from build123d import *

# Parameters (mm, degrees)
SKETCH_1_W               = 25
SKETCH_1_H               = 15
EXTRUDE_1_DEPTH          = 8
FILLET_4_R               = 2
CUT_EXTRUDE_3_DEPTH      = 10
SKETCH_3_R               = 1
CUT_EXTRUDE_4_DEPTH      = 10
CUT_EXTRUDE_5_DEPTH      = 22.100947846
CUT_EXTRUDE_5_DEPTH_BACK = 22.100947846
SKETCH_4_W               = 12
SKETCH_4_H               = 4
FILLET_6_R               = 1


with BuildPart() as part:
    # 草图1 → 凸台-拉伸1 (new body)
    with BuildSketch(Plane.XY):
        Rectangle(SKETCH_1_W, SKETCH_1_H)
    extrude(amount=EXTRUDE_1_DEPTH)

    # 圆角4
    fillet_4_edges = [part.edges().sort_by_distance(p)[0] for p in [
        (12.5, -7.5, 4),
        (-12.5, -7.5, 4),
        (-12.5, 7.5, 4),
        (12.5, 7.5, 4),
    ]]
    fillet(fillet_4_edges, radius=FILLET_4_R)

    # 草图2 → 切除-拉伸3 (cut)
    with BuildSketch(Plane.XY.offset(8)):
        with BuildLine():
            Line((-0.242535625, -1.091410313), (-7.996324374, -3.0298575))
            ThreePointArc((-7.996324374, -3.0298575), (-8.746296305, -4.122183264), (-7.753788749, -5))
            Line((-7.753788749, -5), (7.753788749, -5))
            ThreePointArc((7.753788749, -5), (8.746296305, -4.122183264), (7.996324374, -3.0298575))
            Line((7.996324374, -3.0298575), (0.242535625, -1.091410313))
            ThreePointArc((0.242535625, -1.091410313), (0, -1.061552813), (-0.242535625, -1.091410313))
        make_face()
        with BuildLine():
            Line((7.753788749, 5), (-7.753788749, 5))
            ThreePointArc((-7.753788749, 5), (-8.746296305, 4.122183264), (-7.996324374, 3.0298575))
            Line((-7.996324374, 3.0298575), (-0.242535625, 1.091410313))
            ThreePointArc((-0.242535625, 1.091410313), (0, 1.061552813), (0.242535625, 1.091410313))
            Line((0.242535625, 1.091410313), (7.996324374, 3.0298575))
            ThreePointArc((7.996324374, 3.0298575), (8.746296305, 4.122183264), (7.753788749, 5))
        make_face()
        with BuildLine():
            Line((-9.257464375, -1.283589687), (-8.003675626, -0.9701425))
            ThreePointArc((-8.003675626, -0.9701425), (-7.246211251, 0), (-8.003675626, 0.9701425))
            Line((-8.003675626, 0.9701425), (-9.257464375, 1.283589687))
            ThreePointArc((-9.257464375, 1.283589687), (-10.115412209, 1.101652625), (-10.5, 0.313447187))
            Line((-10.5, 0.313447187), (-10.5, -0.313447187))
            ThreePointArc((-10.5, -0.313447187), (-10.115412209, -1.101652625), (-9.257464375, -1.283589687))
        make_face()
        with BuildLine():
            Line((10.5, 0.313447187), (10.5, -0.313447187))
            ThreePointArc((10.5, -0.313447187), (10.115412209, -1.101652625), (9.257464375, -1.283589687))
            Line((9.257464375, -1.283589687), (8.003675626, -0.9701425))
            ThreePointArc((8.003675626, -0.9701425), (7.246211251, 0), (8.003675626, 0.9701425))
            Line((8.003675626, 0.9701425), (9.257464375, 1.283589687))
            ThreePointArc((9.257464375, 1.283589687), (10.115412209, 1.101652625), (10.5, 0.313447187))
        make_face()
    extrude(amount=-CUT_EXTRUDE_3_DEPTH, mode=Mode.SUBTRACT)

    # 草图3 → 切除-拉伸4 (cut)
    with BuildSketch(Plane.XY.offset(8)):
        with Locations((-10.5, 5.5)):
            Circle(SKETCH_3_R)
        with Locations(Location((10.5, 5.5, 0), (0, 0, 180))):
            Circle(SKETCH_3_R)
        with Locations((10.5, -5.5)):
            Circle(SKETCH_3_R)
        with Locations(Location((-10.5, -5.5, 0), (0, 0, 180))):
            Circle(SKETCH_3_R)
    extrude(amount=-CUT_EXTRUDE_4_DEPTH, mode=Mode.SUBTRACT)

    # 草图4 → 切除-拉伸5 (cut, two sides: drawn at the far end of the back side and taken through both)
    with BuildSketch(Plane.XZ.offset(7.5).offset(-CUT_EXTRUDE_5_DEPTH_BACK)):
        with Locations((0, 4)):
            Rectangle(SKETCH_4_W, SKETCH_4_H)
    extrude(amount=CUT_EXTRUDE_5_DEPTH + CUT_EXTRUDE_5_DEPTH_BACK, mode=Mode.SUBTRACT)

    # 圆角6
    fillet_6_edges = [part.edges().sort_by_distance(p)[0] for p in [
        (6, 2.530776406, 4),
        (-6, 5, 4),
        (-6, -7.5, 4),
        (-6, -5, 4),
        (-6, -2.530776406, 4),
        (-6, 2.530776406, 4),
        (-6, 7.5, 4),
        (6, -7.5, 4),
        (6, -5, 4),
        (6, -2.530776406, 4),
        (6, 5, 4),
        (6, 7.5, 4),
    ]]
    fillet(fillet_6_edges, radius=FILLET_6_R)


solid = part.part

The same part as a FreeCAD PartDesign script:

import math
import FreeCAD as App
import Part
import Sketcher
Q = App.Units.Quantity


def edges_at(feature, points):
    """Names of the edges that pass closest to the given points."""
    edges = feature.Shape.Edges
    near = lambda p: min(range(len(edges)), key=lambda i: edges[i].distToShape(Part.Vertex(*p))[0])
    return sorted({f"Edge{near(p) + 1}" for p in points})

doc = App.newDocument("Part")
body = doc.addObject("PartDesign::Body", "Body")

sketch1 = body.newObject("Sketcher::SketchObject", "Sketch")
sketch1.AttachmentSupport = (doc.getObject("XY_Plane"), [""])
sketch1.MapMode = "FlatFace"
sketch1.addGeometry([
    Part.LineSegment(App.Vector(-12.5, 7.5, 0), App.Vector(-12.5, -7.5, 0)),
    Part.LineSegment(App.Vector(-12.5, -7.5, 0), App.Vector(12.5, -7.5, 0)),
    Part.LineSegment(App.Vector(12.5, -7.5, 0), App.Vector(12.5, 7.5, 0)),
    Part.LineSegment(App.Vector(12.5, 7.5, 0), App.Vector(-12.5, 7.5, 0)),
], False)
sketch1.addConstraint([
    Sketcher.Constraint("Coincident", 0, 2, 1, 1),
    Sketcher.Constraint("Coincident", 1, 2, 2, 1),
    Sketcher.Constraint("Coincident", 2, 2, 3, 1),
    Sketcher.Constraint("Coincident", 3, 2, 0, 1),
    Sketcher.Constraint("Vertical", 0),
    Sketcher.Constraint("Horizontal", 1),
    Sketcher.Constraint("Vertical", 2),
    Sketcher.Constraint("Horizontal", 3),
    Sketcher.Constraint("Symmetric", 0, 2, 2, 2, -1, 1),
    Sketcher.Constraint("DistanceX", 1, 1, 1, 2, Q("25 mm")),
    Sketcher.Constraint("DistanceY", 0, 2, 0, 1, Q("15 mm")),
])
pad1 = body.newObject("PartDesign::Pad", "Pad")
pad1.Profile = sketch1
pad1.Length = 8
doc.recompute()

fillet = body.newObject("PartDesign::Fillet", "Fillet")
fillet.Base = (pad1, edges_at(pad1, [
    (12.5, -7.5, 4),
    (-12.5, -7.5, 4),
    (-12.5, 7.5, 4),
    (12.5, 7.5, 4),
]))
fillet.Radius = 2

sketch2 = body.newObject("Sketcher::SketchObject", "Sketch001")
sketch2.AttachmentSupport = (doc.getObject("XY_Plane"), [""])
sketch2.MapMode = "FlatFace"
sketch2.AttachmentOffset = App.Placement(App.Vector(0, 0, 8), App.Rotation())
sketch2.addGeometry([
    Part.LineSegment(App.Vector(-0.242536, -1.09141, 0), App.Vector(-7.996324, -3.029857, 0)),
    Part.ArcOfCircle(Part.Circle(App.Vector(-7.753789, -4, 0), App.Vector(0, 0, 1), 1), math.radians(104.036244), math.radians(270)),
    Part.LineSegment(App.Vector(-7.753789, -5, 0), App.Vector(7.753789, -5, 0)),
    Part.ArcOfCircle(Part.Circle(App.Vector(7.753789, -4, 0), App.Vector(0, 0, 1), 1), math.radians(-90), math.radians(75.963756)),
    Part.LineSegment(App.Vector(7.996324, -3.029857, 0), App.Vector(0.242536, -1.09141, 0)),
    Part.ArcOfCircle(Part.Circle(App.Vector(0, -2.061553, 0), App.Vector(0, 0, 1), 1), math.radians(75.963756), math.radians(104.036244)),
    Part.LineSegment(App.Vector(7.753789, 5, 0), App.Vector(-7.753789, 5, 0)),
    Part.ArcOfCircle(Part.Circle(App.Vector(-7.753789, 4, 0), App.Vector(0, 0, 1), 1), math.radians(90), math.radians(255.963756)),
    Part.LineSegment(App.Vector(-7.996324, 3.029857, 0), App.Vector(-0.242536, 1.09141, 0)),
    Part.ArcOfCircle(Part.Circle(App.Vector(0, 2.061553, 0), App.Vector(0, 0, 1), 1), math.radians(-104.036244), math.radians(-75.963756)),
    Part.LineSegment(App.Vector(0.242536, 1.09141, 0), App.Vector(7.996324, 3.029857, 0)),
    Part.ArcOfCircle(Part.Circle(App.Vector(7.753789, 4, 0), App.Vector(0, 0, 1), 1), math.radians(-75.963756), math.radians(90)),
    Part.LineSegment(App.Vector(-9.257464, -1.28359, 0), App.Vector(-8.003676, -0.970143, 0)),
    Part.ArcOfCircle(Part.Circle(App.Vector(-8.246211, 0, 0), App.Vector(0, 0, 1), 1), math.radians(-75.963757), math.radians(75.963757)),
    Part.LineSegment(App.Vector(-8.003676, 0.970143, 0), App.Vector(-9.257464, 1.28359, 0)),
    Part.ArcOfCircle(Part.Circle(App.Vector(-9.5, 0.313447, 0), App.Vector(0, 0, 1), 1), math.radians(75.963757), math.radians(180)),
    Part.LineSegment(App.Vector(-10.5, 0.313447, 0), App.Vector(-10.5, -0.313447, 0)),
    Part.ArcOfCircle(Part.Circle(App.Vector(-9.5, -0.313447, 0), App.Vector(0, 0, 1), 1), math.radians(180), math.radians(284.036243)),
    Part.LineSegment(App.Vector(10.5, -0.313447, 0), App.Vector(10.5, 0.313447, 0)),
    Part.ArcOfCircle(Part.Circle(App.Vector(9.5, 0.313447, 0), App.Vector(0, 0, 1), 1), math.radians(0), math.radians(104.036243)),
    Part.LineSegment(App.Vector(9.257464, 1.28359, 0), App.Vector(8.003676, 0.970143, 0)),
    Part.ArcOfCircle(Part.Circle(App.Vector(8.246211, 0, 0), App.Vector(0, 0, 1), 1), math.radians(104.036243), math.radians(255.963757)),
    Part.LineSegment(App.Vector(8.003676, -0.970143, 0), App.Vector(9.257464, -1.28359, 0)),
    Part.ArcOfCircle(Part.Circle(App.Vector(9.5, -0.313447, 0), App.Vector(0, 0, 1), 1), math.radians(-104.036243), math.radians(0)),
], False)
sketch2.addConstraint([
    Sketcher.Constraint("Tangent", 0, 2, 1, 1),
    Sketcher.Constraint("Tangent", 1, 2, 2, 1),
    Sketcher.Constraint("Tangent", 2, 2, 3, 1),
    Sketcher.Constraint("Tangent", 3, 2, 4, 1),
    Sketcher.Constraint("Tangent", 4, 2, 5, 1),
    Sketcher.Constraint("Tangent", 5, 2, 0, 1),
    Sketcher.Constraint("Tangent", 6, 2, 7, 1),
    Sketcher.Constraint("Tangent", 7, 2, 8, 1),
    Sketcher.Constraint("Tangent", 8, 2, 9, 1),
    Sketcher.Constraint("Tangent", 9, 2, 10, 1),
    Sketcher.Constraint("Tangent", 10, 2, 11, 1),
    Sketcher.Constraint("Tangent", 11, 2, 6, 1),
    Sketcher.Constraint("Tangent", 12, 2, 13, 1),
    Sketcher.Constraint("Tangent", 13, 2, 14, 1),
    Sketcher.Constraint("Tangent", 14, 2, 15, 1),
    Sketcher.Constraint("Tangent", 15, 2, 16, 1),
    Sketcher.Constraint("Tangent", 16, 2, 17, 1),
    Sketcher.Constraint("Tangent", 17, 2, 12, 1),
    Sketcher.Constraint("Tangent", 18, 2, 19, 1),
    Sketcher.Constraint("Tangent", 19, 2, 20, 1),
    Sketcher.Constraint("Tangent", 20, 2, 21, 1),
    Sketcher.Constraint("Tangent", 21, 2, 22, 1),
    Sketcher.Constraint("Tangent", 22, 2, 23, 1),
    Sketcher.Constraint("Tangent", 23, 2, 18, 1),
    Sketcher.Constraint("Horizontal", 2),
    Sketcher.Constraint("Horizontal", 6),
    Sketcher.Constraint("Vertical", 16),
    Sketcher.Constraint("Vertical", 18),
    Sketcher.Constraint("Equal", 1, 3),
    Sketcher.Constraint("Equal", 3, 5),
    Sketcher.Constraint("Equal", 5, 7),
    Sketcher.Constraint("Equal", 7, 9),
    Sketcher.Constraint("Equal", 9, 11),
    Sketcher.Constraint("Equal", 11, 13),
    Sketcher.Constraint("Equal", 13, 15),
    Sketcher.Constraint("Equal", 15, 17),
    Sketcher.Constraint("Equal", 17, 19),
    Sketcher.Constraint("Equal", 19, 21),
    Sketcher.Constraint("Equal", 21, 23),
    Sketcher.Constraint("Symmetric", 3, 3, 7, 3, -1, 1),
    Sketcher.Constraint("Symmetric", 5, 3, 9, 3, -1, 1),
    Sketcher.Constraint("Symmetric", 17, 3, 19, 3, -1, 1),
    Sketcher.Constraint("Symmetric", 13, 3, 21, 3, -1, 1),
    Sketcher.Constraint("Symmetric", 0, 2, 3, 2, -2),
    Sketcher.Constraint("Symmetric", 14, 2, 19, 2, -2),
    Sketcher.Constraint("Parallel", 0, 10),
    Sketcher.Constraint("Parallel", 10, 12),
    Sketcher.Constraint("Parallel", 14, 22),
    Sketcher.Constraint("Radius", 1, Q("1 mm")),
    Sketcher.Constraint("DistanceY", 1, 3, -1, 1, Q("4 mm")),
    Sketcher.Constraint("DistanceX", 13, 3, 3, 3, Q("16 mm")),
    Sketcher.Constraint("DistanceX", 15, 3, -1, 1, Q("9.5 mm")),
    Sketcher.Constraint("DistanceY", 5, 3, 15, 3, Q("2.375 mm")),
    Sketcher.Constraint("DistanceX", 2, 1, 2, 2, Q("15.507577 mm")),
])
pocket1 = body.newObject("PartDesign::Pocket", "Pocket")
pocket1.Profile = sketch2
pocket1.Length = 10

sketch3 = body.newObject("Sketcher::SketchObject", "Sketch002")
sketch3.AttachmentSupport = (doc.getObject("XY_Plane"), [""])
sketch3.MapMode = "FlatFace"
sketch3.AttachmentOffset = App.Placement(App.Vector(0, 0, 8), App.Rotation())
sketch3.addGeometry([
    Part.Circle(App.Vector(-10.5, 5.5, 0), App.Vector(0, 0, 1), 1),
    Part.Circle(App.Vector(10.5, 5.5, 0), App.Vector(0, 0, 1), 1),
    Part.Circle(App.Vector(10.5, -5.5, 0), App.Vector(0, 0, 1), 1),
    Part.Circle(App.Vector(-10.5, -5.5, 0), App.Vector(0, 0, 1), 1),
], False)
sketch3.addConstraint([
    Sketcher.Constraint("Equal", 0, 1),
    Sketcher.Constraint("Equal", 1, 2),
    Sketcher.Constraint("Equal", 2, 3),
    Sketcher.Constraint("Symmetric", 0, 3, 2, 3, -1, 1),
    Sketcher.Constraint("Symmetric", 1, 3, 3, 3, -1, 1),
    Sketcher.Constraint("Symmetric", 0, 3, 1, 3, -2),
    Sketcher.Constraint("Diameter", 0, Q("2 mm")),
    Sketcher.Constraint("DistanceX", 0, 3, 1, 3, Q("21 mm")),
    Sketcher.Constraint("DistanceY", 2, 3, 1, 3, Q("11 mm")),
])
pocket2 = body.newObject("PartDesign::Pocket", "Pocket001")
pocket2.Profile = sketch3
pocket2.Length = 10

sketch4 = body.newObject("Sketcher::SketchObject", "Sketch003")
sketch4.AttachmentSupport = (doc.getObject("XZ_Plane"), [""])
sketch4.MapMode = "FlatFace"
sketch4.AttachmentOffset = App.Placement(App.Vector(0, 0, 7.5), App.Rotation())
sketch4.addGeometry([
    Part.LineSegment(App.Vector(-6, 6, 0), App.Vector(-6, 2, 0)),
    Part.LineSegment(App.Vector(-6, 2, 0), App.Vector(6, 2, 0)),
    Part.LineSegment(App.Vector(6, 2, 0), App.Vector(6, 6, 0)),
    Part.LineSegment(App.Vector(6, 6, 0), App.Vector(-6, 6, 0)),
], False)
sketch4.addConstraint([
    Sketcher.Constraint("Coincident", 0, 2, 1, 1),
    Sketcher.Constraint("Coincident", 1, 2, 2, 1),
    Sketcher.Constraint("Coincident", 2, 2, 3, 1),
    Sketcher.Constraint("Coincident", 3, 2, 0, 1),
    Sketcher.Constraint("Vertical", 0),
    Sketcher.Constraint("Horizontal", 1),
    Sketcher.Constraint("Vertical", 2),
    Sketcher.Constraint("Horizontal", 3),
    Sketcher.Constraint("DistanceX", 1, 1, 1, 2, Q("12 mm")),
    Sketcher.Constraint("DistanceY", 0, 2, 0, 1, Q("4 mm")),
    Sketcher.Constraint("DistanceX", 0, 2, -1, 1, Q("6 mm")),
    Sketcher.Constraint("DistanceY", -1, 1, 0, 2, Q("2 mm")),
])
pocket3 = body.newObject("PartDesign::Pocket", "Pocket002")
pocket3.Profile = sketch4
pocket3.Type = "ThroughAll"
pocket3.Midplane = True
doc.recompute()

fillet2 = body.newObject("PartDesign::Fillet", "Fillet001")
fillet2.Base = (pocket3, edges_at(pocket3, [
    (6, 2.531, 4),
    (-6, 5, 4),
    (-6, -7.5, 4),
    (-6, -5, 4),
    (-6, -2.531, 4),
    (-6, 2.531, 4),
    (-6, 7.5, 4),
    (6, -7.5, 4),
    (6, -5, 4),
    (6, -2.531, 4),
    (6, 5, 4),
    (6, 7.5, 4),
]))
fillet2.Radius = 1

doc.recompute()
